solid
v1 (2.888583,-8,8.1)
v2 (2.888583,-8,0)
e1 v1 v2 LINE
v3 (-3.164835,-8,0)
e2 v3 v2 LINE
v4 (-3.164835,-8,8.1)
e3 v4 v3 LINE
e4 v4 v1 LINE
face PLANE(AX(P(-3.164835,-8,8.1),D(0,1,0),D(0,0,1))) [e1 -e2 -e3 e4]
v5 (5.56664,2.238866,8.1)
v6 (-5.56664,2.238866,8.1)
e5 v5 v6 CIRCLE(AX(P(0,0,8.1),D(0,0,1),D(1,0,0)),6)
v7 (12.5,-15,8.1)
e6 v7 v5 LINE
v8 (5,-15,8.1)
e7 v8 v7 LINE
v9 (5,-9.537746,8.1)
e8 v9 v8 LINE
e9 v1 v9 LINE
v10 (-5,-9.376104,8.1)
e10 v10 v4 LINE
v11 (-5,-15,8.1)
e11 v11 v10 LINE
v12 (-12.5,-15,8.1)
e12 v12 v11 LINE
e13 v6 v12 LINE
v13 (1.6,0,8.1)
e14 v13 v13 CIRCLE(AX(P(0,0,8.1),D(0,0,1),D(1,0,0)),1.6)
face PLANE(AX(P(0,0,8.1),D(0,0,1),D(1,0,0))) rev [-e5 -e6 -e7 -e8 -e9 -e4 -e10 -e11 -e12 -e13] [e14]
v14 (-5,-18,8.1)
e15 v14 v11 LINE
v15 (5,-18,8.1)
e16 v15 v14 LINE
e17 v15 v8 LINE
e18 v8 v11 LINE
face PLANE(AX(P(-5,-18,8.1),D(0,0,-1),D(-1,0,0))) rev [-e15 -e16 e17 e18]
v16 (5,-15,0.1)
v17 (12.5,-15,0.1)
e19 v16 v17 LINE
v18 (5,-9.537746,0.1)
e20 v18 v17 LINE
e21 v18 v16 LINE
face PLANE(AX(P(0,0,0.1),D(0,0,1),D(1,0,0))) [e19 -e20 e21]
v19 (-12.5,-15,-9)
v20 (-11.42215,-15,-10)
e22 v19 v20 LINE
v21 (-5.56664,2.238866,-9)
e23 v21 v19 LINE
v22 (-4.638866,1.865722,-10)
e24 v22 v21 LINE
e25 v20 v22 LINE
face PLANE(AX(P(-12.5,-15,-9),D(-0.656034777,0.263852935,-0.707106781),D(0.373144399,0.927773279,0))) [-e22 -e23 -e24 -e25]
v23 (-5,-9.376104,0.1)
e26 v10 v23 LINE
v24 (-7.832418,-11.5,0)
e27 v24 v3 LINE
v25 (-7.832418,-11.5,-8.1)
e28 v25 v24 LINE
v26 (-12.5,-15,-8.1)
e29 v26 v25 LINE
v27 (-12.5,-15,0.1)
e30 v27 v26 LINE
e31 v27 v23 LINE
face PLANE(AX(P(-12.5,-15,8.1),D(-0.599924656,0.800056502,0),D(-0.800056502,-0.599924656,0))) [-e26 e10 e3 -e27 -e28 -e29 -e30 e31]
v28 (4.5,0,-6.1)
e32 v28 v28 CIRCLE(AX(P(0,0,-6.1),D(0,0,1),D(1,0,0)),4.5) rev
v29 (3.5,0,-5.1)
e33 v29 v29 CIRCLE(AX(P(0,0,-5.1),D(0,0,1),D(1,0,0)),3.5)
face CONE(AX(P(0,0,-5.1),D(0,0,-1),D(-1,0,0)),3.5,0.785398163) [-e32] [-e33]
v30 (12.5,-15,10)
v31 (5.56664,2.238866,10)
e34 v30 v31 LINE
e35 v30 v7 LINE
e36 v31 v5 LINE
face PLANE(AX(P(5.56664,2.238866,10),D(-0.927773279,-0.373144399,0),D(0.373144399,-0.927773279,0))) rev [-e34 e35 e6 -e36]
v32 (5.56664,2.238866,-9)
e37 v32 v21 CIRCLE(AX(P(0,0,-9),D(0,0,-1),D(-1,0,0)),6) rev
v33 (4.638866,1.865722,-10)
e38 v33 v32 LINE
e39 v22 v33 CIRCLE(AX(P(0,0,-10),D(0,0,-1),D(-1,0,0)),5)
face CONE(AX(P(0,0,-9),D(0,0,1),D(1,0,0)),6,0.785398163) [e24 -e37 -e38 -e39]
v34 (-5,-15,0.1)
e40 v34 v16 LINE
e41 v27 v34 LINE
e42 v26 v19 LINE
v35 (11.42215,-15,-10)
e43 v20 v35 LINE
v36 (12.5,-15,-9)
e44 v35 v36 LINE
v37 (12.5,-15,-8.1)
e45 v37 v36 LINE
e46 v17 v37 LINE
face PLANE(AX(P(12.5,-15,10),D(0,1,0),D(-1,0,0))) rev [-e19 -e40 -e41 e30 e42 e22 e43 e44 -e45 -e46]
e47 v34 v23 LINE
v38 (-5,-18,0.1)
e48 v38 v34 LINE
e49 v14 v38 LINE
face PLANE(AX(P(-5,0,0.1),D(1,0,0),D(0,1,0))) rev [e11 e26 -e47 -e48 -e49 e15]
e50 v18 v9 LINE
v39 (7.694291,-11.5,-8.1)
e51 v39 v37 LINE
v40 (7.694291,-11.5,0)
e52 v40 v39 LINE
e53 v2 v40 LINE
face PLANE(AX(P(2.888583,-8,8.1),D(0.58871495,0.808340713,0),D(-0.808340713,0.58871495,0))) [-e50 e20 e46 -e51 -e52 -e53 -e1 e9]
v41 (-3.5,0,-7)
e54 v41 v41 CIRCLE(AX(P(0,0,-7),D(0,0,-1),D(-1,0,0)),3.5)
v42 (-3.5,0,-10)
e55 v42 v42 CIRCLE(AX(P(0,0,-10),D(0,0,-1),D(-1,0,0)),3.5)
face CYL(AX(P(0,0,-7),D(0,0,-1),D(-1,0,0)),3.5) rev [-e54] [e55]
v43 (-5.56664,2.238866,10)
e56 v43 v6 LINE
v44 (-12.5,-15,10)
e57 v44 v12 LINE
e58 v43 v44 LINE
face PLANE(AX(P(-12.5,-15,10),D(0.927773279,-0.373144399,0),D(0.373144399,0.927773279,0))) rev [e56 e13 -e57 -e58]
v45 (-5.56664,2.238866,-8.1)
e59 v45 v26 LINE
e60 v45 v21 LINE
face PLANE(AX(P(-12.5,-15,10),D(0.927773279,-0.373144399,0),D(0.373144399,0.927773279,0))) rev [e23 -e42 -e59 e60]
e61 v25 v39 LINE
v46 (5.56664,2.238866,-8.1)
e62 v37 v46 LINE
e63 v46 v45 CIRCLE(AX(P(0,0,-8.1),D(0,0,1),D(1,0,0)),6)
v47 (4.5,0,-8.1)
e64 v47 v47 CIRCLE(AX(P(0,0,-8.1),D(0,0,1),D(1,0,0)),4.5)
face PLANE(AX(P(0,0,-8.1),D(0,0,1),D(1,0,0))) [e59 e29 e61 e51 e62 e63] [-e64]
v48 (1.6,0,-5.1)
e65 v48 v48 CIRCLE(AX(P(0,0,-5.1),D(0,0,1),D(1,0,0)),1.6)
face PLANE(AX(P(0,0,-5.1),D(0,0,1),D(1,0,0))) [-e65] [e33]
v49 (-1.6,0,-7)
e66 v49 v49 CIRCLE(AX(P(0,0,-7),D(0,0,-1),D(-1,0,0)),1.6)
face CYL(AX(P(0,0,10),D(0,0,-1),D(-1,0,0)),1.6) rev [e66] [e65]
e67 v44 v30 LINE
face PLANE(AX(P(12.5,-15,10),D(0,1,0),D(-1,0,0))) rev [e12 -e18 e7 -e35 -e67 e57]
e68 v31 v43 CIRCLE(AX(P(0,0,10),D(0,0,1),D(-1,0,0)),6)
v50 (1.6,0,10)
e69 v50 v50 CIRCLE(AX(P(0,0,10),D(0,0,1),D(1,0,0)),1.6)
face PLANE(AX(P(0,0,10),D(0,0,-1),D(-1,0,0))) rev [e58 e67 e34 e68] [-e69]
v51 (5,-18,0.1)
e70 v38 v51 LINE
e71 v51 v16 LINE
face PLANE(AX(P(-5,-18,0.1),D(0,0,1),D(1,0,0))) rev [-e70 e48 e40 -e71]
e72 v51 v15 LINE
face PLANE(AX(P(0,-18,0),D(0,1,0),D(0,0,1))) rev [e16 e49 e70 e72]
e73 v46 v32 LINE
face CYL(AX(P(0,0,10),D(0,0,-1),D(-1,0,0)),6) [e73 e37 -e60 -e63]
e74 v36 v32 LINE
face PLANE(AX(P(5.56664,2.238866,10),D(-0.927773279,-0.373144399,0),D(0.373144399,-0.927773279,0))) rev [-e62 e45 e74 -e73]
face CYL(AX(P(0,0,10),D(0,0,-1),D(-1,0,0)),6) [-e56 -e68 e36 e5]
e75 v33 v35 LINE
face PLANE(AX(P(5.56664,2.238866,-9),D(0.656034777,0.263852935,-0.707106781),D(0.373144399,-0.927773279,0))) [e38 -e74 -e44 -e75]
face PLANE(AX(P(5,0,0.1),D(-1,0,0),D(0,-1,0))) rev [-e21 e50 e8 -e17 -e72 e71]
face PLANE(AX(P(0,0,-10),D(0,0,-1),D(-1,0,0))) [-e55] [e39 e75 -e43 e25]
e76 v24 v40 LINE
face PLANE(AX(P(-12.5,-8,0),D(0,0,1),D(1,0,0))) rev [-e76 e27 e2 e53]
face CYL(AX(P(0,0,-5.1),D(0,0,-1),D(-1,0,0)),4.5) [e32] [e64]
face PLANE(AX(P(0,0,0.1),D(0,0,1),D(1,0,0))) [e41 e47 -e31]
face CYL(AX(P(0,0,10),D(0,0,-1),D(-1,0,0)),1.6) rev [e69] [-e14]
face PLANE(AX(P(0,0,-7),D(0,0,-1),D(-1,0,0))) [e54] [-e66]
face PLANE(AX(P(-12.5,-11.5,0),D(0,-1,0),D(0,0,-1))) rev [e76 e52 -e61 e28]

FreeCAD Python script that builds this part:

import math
import FreeCAD as App
import Part
import Sketcher

V = App.Vector


def edges_at(feature, points):
    """Names of the edges that pass closest to the given points."""
    edges = feature.Shape.Edges
    near = lambda p: min(range(len(edges)), key=lambda i: edges[i].distToShape(Part.Vertex(*p))[0])
    return sorted({f"Edge{near(p) + 1}" for p in points})

doc = App.newDocument("Part")
body = doc.addObject("PartDesign::Body", "Body")

# Sketch on XY plane
sketch1 = body.newObject("Sketcher::SketchObject", "Sketch")
sketch1.AttachmentSupport = (doc.getObject("XY_Plane"), [""])
sketch1.MapMode = "FlatFace"
sketch1.addGeometry([
    Part.LineSegment(V(-5.6, 2.2, 0), V(-12.5, -15, 0)),  # 0
    Part.LineSegment(V(-12.5, -15, 0), V(12.5, -15, 0)),  # 1
    Part.LineSegment(V(12.5, -15, 0), V(5.6, 2.2, 0)),  # 2
    Part.ArcOfCircle(Part.Circle(V(0, 0, 0), V(0, 0, 1), 6), math.radians(22), math.radians(158)),  # 3
    Part.Circle(V(0, 0, 0), V(0, 0, 1), 1.6),  # 4
], False)
sketch1.addConstraint([
    Sketcher.Constraint("Coincident", 0, 2, 1, 1),
    Sketcher.Constraint("Coincident", 1, 2, 2, 1),
    Sketcher.Constraint("Tangent", 2, 2, 3, 1),
    Sketcher.Constraint("Tangent", 3, 2, 0, 1),
    Sketcher.Constraint("Horizontal", 1),
    Sketcher.Constraint("Coincident", 3, 3, -1, 1),
    Sketcher.Constraint("Coincident", 4, 3, -1, 1),
    Sketcher.Constraint("Horizontal", 2, 2, 3, 2),
    Sketcher.Constraint("Radius", 3, 6.0),
    Sketcher.Constraint("Diameter", 4, 3.2),
    Sketcher.Constraint("DistanceX", 1, 1, 1, 2, 25.0),
    Sketcher.Constraint("DistanceY", 0, 2, -1, 1, 15.0),
])
pad1 = body.newObject("PartDesign::Pad", "Pad")
pad1.Profile = sketch1
pad1.Length = 20
pad1.Midplane = True

# Sketch on XY plane
sketch2 = body.newObject("Sketcher::SketchObject", "Sketch001")
sketch2.AttachmentSupport = (doc.getObject("XY_Plane"), [""])
sketch2.MapMode = "FlatFace"
sketch2.addGeometry([
    Part.LineSegment(V(-8, 0, 0), V(-12, -15, 0)),  # 0
    Part.LineSegment(V(-12, -15, 0), V(-3, -8, 0)),  # 1
    Part.LineSegment(V(-3, -8, 0), V(3, -8, 0)),  # 2
    Part.LineSegment(V(3, -8, 0), V(12, -15, 0)),  # 3
    Part.LineSegment(V(12, -15, 0), V(8, 0, 0)),  # 4
    Part.ArcOfCircle(Part.Circle(V(0, 0, 0), V(0, 0, 1), 8), math.radians(0), math.radians(180)),  # 5
], False)
sketch2.addConstraint([
    Sketcher.Constraint("Coincident", 0, 2, 1, 1),
    Sketcher.Constraint("Coincident", 1, 2, 2, 1),
    Sketcher.Constraint("Coincident", 2, 2, 3, 1),
    Sketcher.Constraint("Coincident", 3, 2, 4, 1),
    Sketcher.Constraint("Coincident", 4, 2, 5, 1),
    Sketcher.Constraint("Coincident", 5, 2, 0, 1),
    Sketcher.Constraint("Horizontal", 2),
    Sketcher.Constraint("Coincident", 5, 3, -1, 1),
    Sketcher.Constraint("Symmetric", 0, 2, 3, 2, -2),
    Sketcher.Constraint("PointOnObject", 4, 2, -1),
    Sketcher.Constraint("PointOnObject", 5, 2, -1),
    Sketcher.Constraint("Radius", 5, 7.5),
    Sketcher.Constraint("DistanceY", 0, 2, -1, 1, 15.0),
    Sketcher.Constraint("DistanceY", 1, 2, -1, 1, 8.0),
    Sketcher.Constraint("DistanceX", 0, 2, 3, 2, 25.0),
    Sketcher.Constraint("DistanceX", 2, 1, 2, 2, 6.053418),
    Sketcher.Constraint("Distance", 1, 11.668132),
])
pocket1 = body.newObject("PartDesign::Pocket", "Pocket")
pocket1.Profile = sketch2
pocket1.Type = "TwoLengths"
pocket1.Length = 8.1
pocket1.Length2 = 8.1
pocket1.Reversed = True

# Sketch on XY plane
sketch3 = body.newObject("Sketcher::SketchObject", "Sketch002")
sketch3.AttachmentSupport = (doc.getObject("XY_Plane"), [""])
sketch3.MapMode = "FlatFace"
sketch3.AttachmentOffset = App.Placement(V(0, 0, 8.1), App.Rotation())
sketch3.addGeometry([
    Part.LineSegment(V(-17, 11, 0), V(-17, -20, 0)),  # 0
    Part.LineSegment(V(-17, -20, 0), V(17, -20, 0)),  # 1
    Part.LineSegment(V(17, -20, 0), V(17, 11, 0)),  # 2
    Part.LineSegment(V(17, 11, 0), V(-17, 11, 0)),  # 3
    Part.LineSegment(V(5, -15, 0), V(-5, -15, 0)),  # 4
    Part.LineSegment(V(-5, -15, 0), V(-5, 11, 0)),  # 5
    Part.LineSegment(V(-5, 11, 0), V(5, 11, 0)),  # 6
    Part.LineSegment(V(5, 11, 0), V(5, -15, 0)),  # 7
], False)
sketch3.addConstraint([
    Sketcher.Constraint("Coincident", 0, 2, 1, 1),
    Sketcher.Constraint("Coincident", 1, 2, 2, 1),
    Sketcher.Constraint("Coincident", 2, 2, 3, 1),
    Sketcher.Constraint("Coincident", 3, 2, 0, 1),
    Sketcher.Constraint("Coincident", 4, 2, 5, 1),
    Sketcher.Constraint("Coincident", 5, 2, 6, 1),
    Sketcher.Constraint("Coincident", 6, 2, 7, 1),
    Sketcher.Constraint("Coincident", 7, 2, 4, 1),
    Sketcher.Constraint("Vertical", 0),
    Sketcher.Constraint("Horizontal", 1),
    Sketcher.Constraint("Vertical", 2),
    Sketcher.Constraint("Horizontal", 3),
    Sketcher.Constraint("Horizontal", 4),
    Sketcher.Constraint("Vertical", 5),
    Sketcher.Constraint("Horizontal", 6),
    Sketcher.Constraint("Vertical", 7),
    Sketcher.Constraint("DistanceX", 4, 2, 4, 1, 10.0),
    Sketcher.Constraint("DistanceX", 4, 2, -1, 1, 5.0),
    Sketcher.Constraint("DistanceY", 4, 2, -1, 1, 15.0),
    Sketcher.Constraint("DistanceX", 1, 1, 1, 2, 34.658),
    Sketcher.Constraint("DistanceY", 0, 2, 0, 1, 30.658),
    Sketcher.Constraint("DistanceY", 5, 1, 5, 2, 25.797501),
    Sketcher.Constraint("DistanceX", 0, 2, -1, 1, 17.329),
    Sketcher.Constraint("DistanceY", 0, 2, -1, 1, 19.829),
])
pocket2 = body.newObject("PartDesign::Pocket", "Pocket001")
pocket2.Profile = sketch3
pocket2.Length = 8

# Sketch on XZ plane
sketch4 = body.newObject("Sketcher::SketchObject", "Sketch003")
sketch4.AttachmentSupport = (doc.getObject("XZ_Plane"), [""])
sketch4.MapMode = "FlatFace"
sketch4.AttachmentOffset = App.Placement(V(0, 0, 15), App.Rotation())
sketch4.addGeometry([
    Part.LineSegment(V(-5, 8, 0), V(-5, 0, 0)),
    Part.LineSegment(V(-5, 0, 0), V(5, 0, 0)),
    Part.LineSegment(V(5, 0, 0), V(5, 8, 0)),
    Part.LineSegment(V(5, 8, 0), V(-5, 8, 0)),
], False)
sketch4.addConstraint([
    Sketcher.Constraint("Coincident", 0, 2, 1, 1),
    Sketcher.Constraint("Coincident", 1, 2, 2, 1),
    Sketcher.Constraint("Coincident", 2, 2, 3, 1),
    Sketcher.Constraint("Coincident", 3, 2, 0, 1),
    Sketcher.Constraint("Vertical", 0),
    Sketcher.Constraint("Horizontal", 1),
    Sketcher.Constraint("Vertical", 2),
    Sketcher.Constraint("Horizontal", 3),
    Sketcher.Constraint("DistanceX", 1, 1, 1, 2, 10.0),
    Sketcher.Constraint("DistanceY", 0, 2, 0, 1, 8.0),
    Sketcher.Constraint("DistanceX", 0, 2, -1, 1, 5.0),
    Sketcher.Constraint("DistanceY", -1, 1, 0, 2, 0.1),
])
pad2 = body.newObject("PartDesign::Pad", "Pad001")
pad2.Profile = sketch4
pad2.Length = 3

# Sketch on YZ plane
sketch5 = body.newObject("Sketcher::SketchObject", "Sketch004")
sketch5.AttachmentSupport = (doc.getObject("YZ_Plane"), [""])
sketch5.MapMode = "FlatFace"
sketch5.addGeometry([
    Part.LineSegment(V(-8, 0, 0), V(-11.5, 0, 0)),
    Part.LineSegment(V(-11.5, 0, 0), V(-11.5, -8.1, 0)),
    Part.LineSegment(V(-11.5, -8.1, 0), V(-8, -8.1, 0)),
    Part.LineSegment(V(-8, -8.1, 0), V(-8, 0, 0)),
], False)
sketch5.addConstraint([
    Sketcher.Constraint("Coincident", 0, 2, 1, 1),
    Sketcher.Constraint("Coincident", 1, 2, 2, 1),
    Sketcher.Constraint("Coincident", 2, 2, 3, 1),
    Sketcher.Constraint("Coincident", 3, 2, 0, 1),
    Sketcher.Constraint("Horizontal", 0),
    Sketcher.Constraint("Vertical", 1),
    Sketcher.Constraint("Horizontal", 2),
    Sketcher.Constraint("Vertical", 3),
    Sketcher.Constraint("PointOnObject", 0, 2, -1),
    Sketcher.Constraint("DistanceX", 0, 2, 0, 1, 3.5),
    Sketcher.Constraint("DistanceY", 1, 2, 1, 1, 8.1),
    Sketcher.Constraint("DistanceX", 2, 2, -1, 1, 8.0),
])
pocket3 = body.newObject("PartDesign::Pocket", "Pocket002")
pocket3.Profile = sketch5
pocket3.Type = "ThroughAll"
pocket3.Midplane = True

# Sketch on XY plane
sketch6 = body.newObject("Sketcher::SketchObject", "Sketch005")
sketch6.AttachmentSupport = (doc.getObject("XY_Plane"), [""])
sketch6.MapMode = "FlatFace"
sketch6.AttachmentOffset = App.Placement(V(0, 0, -8.1), App.Rotation())
sketch6.addGeometry([
    Part.Circle(V(0, 0, 0), V(0, 0, 1), 4.5),
    Part.Circle(V(0, 0, 0), V(0, 0, 1), 1.6),
], False)
sketch6.addConstraint([
    Sketcher.Constraint("Coincident", 0, 3, -1, 1),
    Sketcher.Constraint("Coincident", 1, 3, -1, 1),
    Sketcher.Constraint("Diameter", 0, 9.0),
    Sketcher.Constraint("Diameter", 1, 3.2),
])
pad3 = body.newObject("PartDesign::Pad", "Pad002")
pad3.Profile = sketch6
pad3.Length = 3
doc.recompute()

chamfer = body.newObject("PartDesign::Chamfer", "Chamfer")
chamfer.Base = (pad3, edges_at(pad3, [(-4.5, 0, -5.1)]))
chamfer.Size = 1

# Sketch on XY plane
sketch7 = body.newObject("Sketcher::SketchObject", "Sketch006")
sketch7.AttachmentSupport = (doc.getObject("XY_Plane"), [""])
sketch7.MapMode = "FlatFace"
sketch7.AttachmentOffset = App.Placement(V(0, 0, -10), App.Rotation())
sketch7.addGeometry(Part.Circle(V(0, 0, 0), V(0, 0, 1), 3.5), False)
sketch7.addConstraint([
    Sketcher.Constraint("Coincident", 0, 3, -1, 1),
    Sketcher.Constraint("Diameter", 0, 7.0),
])
pocket4 = body.newObject("PartDesign::Pocket", "Pocket003")
pocket4.Profile = sketch7
pocket4.Length = 3
pocket4.Reversed = True
doc.recompute()

chamfer2 = body.newObject("PartDesign::Chamfer", "Chamfer001")
chamfer2.Base = (pocket4, edges_at(pocket4, [(-9.033, -6.381, -10), (0, 6, -10), (9.033, -6.381, -10)]))
chamfer2.Size = 1

doc.recompute()
